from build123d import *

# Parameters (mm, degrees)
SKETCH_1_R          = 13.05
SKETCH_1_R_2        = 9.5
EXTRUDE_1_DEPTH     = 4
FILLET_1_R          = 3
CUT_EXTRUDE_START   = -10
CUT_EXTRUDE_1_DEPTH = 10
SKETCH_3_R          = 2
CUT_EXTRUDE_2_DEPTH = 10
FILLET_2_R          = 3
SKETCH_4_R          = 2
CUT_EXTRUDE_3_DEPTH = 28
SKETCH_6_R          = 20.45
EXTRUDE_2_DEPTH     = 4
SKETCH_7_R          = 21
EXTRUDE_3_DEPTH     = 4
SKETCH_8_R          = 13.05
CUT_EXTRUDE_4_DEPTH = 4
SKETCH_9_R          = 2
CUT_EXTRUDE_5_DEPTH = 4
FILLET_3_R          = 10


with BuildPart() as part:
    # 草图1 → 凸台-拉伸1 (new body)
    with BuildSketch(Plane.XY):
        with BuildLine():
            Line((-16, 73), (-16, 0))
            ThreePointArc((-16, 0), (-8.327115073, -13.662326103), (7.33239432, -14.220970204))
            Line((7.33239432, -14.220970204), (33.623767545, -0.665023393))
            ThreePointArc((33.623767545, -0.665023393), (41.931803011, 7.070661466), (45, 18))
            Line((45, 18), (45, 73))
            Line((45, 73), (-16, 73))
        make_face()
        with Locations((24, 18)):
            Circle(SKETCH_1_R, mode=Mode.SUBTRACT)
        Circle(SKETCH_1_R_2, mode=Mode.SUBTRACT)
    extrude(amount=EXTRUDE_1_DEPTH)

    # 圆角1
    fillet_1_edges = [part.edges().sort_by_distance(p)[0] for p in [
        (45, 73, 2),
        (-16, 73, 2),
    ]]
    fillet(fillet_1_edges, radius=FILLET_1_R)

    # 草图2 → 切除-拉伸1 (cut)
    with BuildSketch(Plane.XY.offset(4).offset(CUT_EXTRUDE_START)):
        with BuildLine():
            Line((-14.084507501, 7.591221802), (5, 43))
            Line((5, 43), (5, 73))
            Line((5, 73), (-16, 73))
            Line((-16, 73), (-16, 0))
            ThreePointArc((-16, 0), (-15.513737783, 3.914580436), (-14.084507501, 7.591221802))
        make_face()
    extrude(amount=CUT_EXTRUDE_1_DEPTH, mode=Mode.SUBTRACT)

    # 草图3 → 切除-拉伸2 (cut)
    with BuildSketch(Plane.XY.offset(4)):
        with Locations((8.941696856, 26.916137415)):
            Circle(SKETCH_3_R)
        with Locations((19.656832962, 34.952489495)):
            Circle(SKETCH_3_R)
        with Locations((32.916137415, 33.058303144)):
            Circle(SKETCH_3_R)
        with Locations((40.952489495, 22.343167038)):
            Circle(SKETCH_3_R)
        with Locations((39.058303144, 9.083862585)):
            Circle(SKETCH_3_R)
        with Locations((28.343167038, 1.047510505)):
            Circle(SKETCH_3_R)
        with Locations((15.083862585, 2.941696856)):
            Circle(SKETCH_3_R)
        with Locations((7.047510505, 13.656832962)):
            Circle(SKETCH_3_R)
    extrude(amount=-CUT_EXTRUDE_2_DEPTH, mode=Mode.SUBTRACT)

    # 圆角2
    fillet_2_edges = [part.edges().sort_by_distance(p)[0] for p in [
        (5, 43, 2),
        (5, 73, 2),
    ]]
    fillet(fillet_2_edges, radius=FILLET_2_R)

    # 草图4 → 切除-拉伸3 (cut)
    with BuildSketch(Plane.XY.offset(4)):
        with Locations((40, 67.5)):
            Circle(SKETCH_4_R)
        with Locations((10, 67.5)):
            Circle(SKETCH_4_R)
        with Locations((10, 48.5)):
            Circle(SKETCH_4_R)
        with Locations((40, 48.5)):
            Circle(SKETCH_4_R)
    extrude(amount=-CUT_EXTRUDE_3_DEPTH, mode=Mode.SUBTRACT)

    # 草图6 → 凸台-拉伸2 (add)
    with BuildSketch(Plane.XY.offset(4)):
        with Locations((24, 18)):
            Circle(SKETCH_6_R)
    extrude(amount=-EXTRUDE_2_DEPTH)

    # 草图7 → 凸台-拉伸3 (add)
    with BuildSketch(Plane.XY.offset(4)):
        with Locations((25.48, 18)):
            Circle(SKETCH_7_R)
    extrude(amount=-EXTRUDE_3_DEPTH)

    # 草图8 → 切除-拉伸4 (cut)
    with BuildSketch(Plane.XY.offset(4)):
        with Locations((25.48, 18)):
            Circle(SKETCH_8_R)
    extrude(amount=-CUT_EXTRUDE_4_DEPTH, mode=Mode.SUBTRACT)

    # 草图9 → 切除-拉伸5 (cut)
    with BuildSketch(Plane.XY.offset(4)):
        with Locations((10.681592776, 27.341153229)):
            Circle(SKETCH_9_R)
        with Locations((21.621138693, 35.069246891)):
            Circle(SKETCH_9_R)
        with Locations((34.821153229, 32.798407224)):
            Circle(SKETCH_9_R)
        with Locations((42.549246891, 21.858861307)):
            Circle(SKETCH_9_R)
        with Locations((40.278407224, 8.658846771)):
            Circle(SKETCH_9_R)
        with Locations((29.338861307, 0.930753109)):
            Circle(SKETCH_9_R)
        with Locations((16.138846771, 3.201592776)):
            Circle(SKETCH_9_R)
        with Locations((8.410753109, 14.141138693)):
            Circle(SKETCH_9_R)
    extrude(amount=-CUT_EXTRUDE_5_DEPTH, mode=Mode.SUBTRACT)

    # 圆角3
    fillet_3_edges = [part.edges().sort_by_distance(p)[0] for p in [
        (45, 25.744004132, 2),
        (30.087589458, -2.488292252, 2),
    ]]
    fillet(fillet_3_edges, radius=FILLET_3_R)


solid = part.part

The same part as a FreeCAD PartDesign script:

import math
import FreeCAD as App
import Part
import Sketcher
Q = App.Units.Quantity


def edges_at(feature, points):
    """Names of the edges that pass closest to the given points."""
    edges = feature.Shape.Edges
    near = lambda p: min(range(len(edges)), key=lambda i: edges[i].distToShape(Part.Vertex(*p))[0])
    return sorted({f"Edge{near(p) + 1}" for p in points})

doc = App.newDocument("Part")
body = doc.addObject("PartDesign::Body", "Body")

sketch1 = doc.addObject("Sketcher::SketchObject", "Sketch")
body.addObject(sketch1)
sketch1.AttachmentSupport = (doc.XY_Plane, [""])
sketch1.MapMode = "FlatFace"
sketch1.addGeometry([
    Part.LineSegment(App.Vector(-16, 73, 0), App.Vector(-16, 0, 0)),
    Part.ArcOfCircle(Part.Circle(App.Vector(0, 0, 0), App.Vector(0, 0, 1), 16), math.radians(-180), math.radians(-63)),
    Part.LineSegment(App.Vector(7, -14, 0), App.Vector(34, -1, 0)),
    Part.ArcOfCircle(Part.Circle(App.Vector(24, 18, 0), App.Vector(0, 0, 1), 21), math.radians(-63), math.radians(0)),
    Part.LineSegment(App.Vector(45, 18, 0), App.Vector(45, 73, 0)),
    Part.LineSegment(App.Vector(45, 73, 0), App.Vector(-16, 73, 0)),
    Part.Circle(App.Vector(0, 0, 0), App.Vector(0, 0, 1), 10),
    Part.Circle(App.Vector(24, 18, 0), App.Vector(0, 0, 1), 13),
], False)
sketch1.addConstraint([
    Sketcher.Constraint("Tangent", 0, 2, 1, 1),
    Sketcher.Constraint("Tangent", 1, 2, 2, 1),
    Sketcher.Constraint("Tangent", 2, 2, 3, 1),
    Sketcher.Constraint("Tangent", 3, 2, 4, 1),
    Sketcher.Constraint("Coincident", 4, 2, 5, 1),
    Sketcher.Constraint("Coincident", 5, 2, 0, 1),
    Sketcher.Constraint("Vertical", 0),
    Sketcher.Constraint("Vertical", 4),
    Sketcher.Constraint("Horizontal", 5),
    Sketcher.Constraint("Coincident", 1, 3, -1, 1),
    Sketcher.Constraint("Coincident", 6, 3, -1, 1),
    Sketcher.Constraint("Coincident", 7, 3, 3, 3),
    Sketcher.Constraint("Diameter", 6, Q("19 mm")),
    Sketcher.Constraint("Radius", 1, Q("16 mm")),
    Sketcher.Constraint("Radius", 3, Q("21 mm")),
    Sketcher.Constraint("Diameter", 7, Q("26.1 mm")),
    Sketcher.Constraint("DistanceX", 5, 2, 5, 1, Q("61 mm")),
    Sketcher.Constraint("DistanceY", 0, 2, 0, 1, Q("73 mm")),
    Sketcher.Constraint("DistanceY", 4, 1, 4, 2, Q("55 mm")),
])
pad1 = doc.addObject("PartDesign::Pad", "Pad")
body.addObject(pad1)
pad1.Profile = sketch1
pad1.Length = 4
doc.recompute()

fillet = doc.addObject("PartDesign::Fillet", "Fillet")
body.addObject(fillet)
fillet.Base = (pad1, edges_at(pad1, [(45, 73, 2), (-16, 73, 2)]))
fillet.Radius = 3

sketch2 = doc.addObject("Sketcher::SketchObject", "Sketch001")
body.addObject(sketch2)
sketch2.AttachmentSupport = (doc.XY_Plane, [""])
sketch2.MapMode = "FlatFace"
sketch2.AttachmentOffset = App.Placement(App.Vector(0, 0, -6), App.Rotation())
sketch2.addGeometry([
    Part.LineSegment(App.Vector(-14, 8, 0), App.Vector(5, 43, 0)),
    Part.LineSegment(App.Vector(5, 43, 0), App.Vector(5, 73, 0)),
    Part.LineSegment(App.Vector(5, 73, 0), App.Vector(-16, 73, 0)),
    Part.LineSegment(App.Vector(-16, 73, 0), App.Vector(-16, 0, 0)),
    Part.ArcOfCircle(Part.Circle(App.Vector(0, 0, 0), App.Vector(0, 0, 1), 16), math.radians(152), math.radians(180)),
], False)
sketch2.addConstraint([
    Sketcher.Constraint("Coincident", 0, 2, 1, 1),
    Sketcher.Constraint("Coincident", 1, 2, 2, 1),
    Sketcher.Constraint("Coincident", 2, 2, 3, 1),
    Sketcher.Constraint("Tangent", 3, 2, 4, 2),
    Sketcher.Constraint("Tangent", 4, 1, 0, 1),
    Sketcher.Constraint("Vertical", 1),
    Sketcher.Constraint("Horizontal", 2),
    Sketcher.Constraint("Vertical", 3),
    Sketcher.Constraint("Coincident", 4, 3, -1, 1),
    Sketcher.Constraint("Radius", 4, Q("16 mm")),
    Sketcher.Constraint("DistanceX", 2, 2, 2, 1, Q("21 mm")),
    Sketcher.Constraint("DistanceY", 1, 1, 1, 2, Q("30 mm")),
    Sketcher.Constraint("DistanceY", 3, 2, 3, 1, Q("73 mm")),
])
pocket1 = doc.addObject("PartDesign::Pocket", "Pocket")
body.addObject(pocket1)
pocket1.Profile = sketch2
pocket1.Length = 10
pocket1.Reversed = True

sketch3 = doc.addObject("Sketcher::SketchObject", "Sketch002")
body.addObject(sketch3)
sketch3.AttachmentSupport = (doc.XY_Plane, [""])
sketch3.MapMode = "FlatFace"
sketch3.AttachmentOffset = App.Placement(App.Vector(0, 0, 4), App.Rotation())
sketch3.addGeometry([
    Part.Circle(App.Vector(8.9, 26.9, 0), App.Vector(0, 0, 1), 2),
    Part.Circle(App.Vector(19.7, 35, 0), App.Vector(0, 0, 1), 2),
    Part.Circle(App.Vector(32.9, 33.1, 0), App.Vector(0, 0, 1), 2),
    Part.Circle(App.Vector(41, 22.3, 0), App.Vector(0, 0, 1), 2),
    Part.Circle(App.Vector(39.1, 9.1, 0), App.Vector(0, 0, 1), 2),
    Part.Circle(App.Vector(28.3, 1, 0), App.Vector(0, 0, 1), 2),
    Part.Circle(App.Vector(15.1, 2.9, 0), App.Vector(0, 0, 1), 2),
    Part.Circle(App.Vector(7, 13.7, 0), App.Vector(0, 0, 1), 2),
], False)
sketch3.addConstraint([
    Sketcher.Constraint("Equal", 0, 1),
    Sketcher.Constraint("Equal", 1, 2),
    Sketcher.Constraint("Equal", 2, 3),
    Sketcher.Constraint("Equal", 3, 4),
    Sketcher.Constraint("Equal", 4, 5),
    Sketcher.Constraint("Equal", 5, 6),
    Sketcher.Constraint("Equal", 6, 7),
    Sketcher.Constraint("Diameter", 0, Q("4 mm")),
    Sketcher.Constraint("DistanceY", -1, 1, 1, 3, Q("34.952489 mm")),
    Sketcher.Constraint("DistanceX", -1, 1, 3, 3, Q("40.952489 mm")),
    Sketcher.Constraint("DistanceY", -1, 1, 5, 3, Q("1.047511 mm")),
    Sketcher.Constraint("DistanceX", -1, 1, 7, 3, Q("7.047511 mm")),
    Sketcher.Constraint("DistanceX", 0, 3, 2, 3, Q("23.974441 mm")),
    Sketcher.Constraint("DistanceY", 3, 3, 0, 3, Q("4.57297 mm")),
    Sketcher.Constraint("DistanceY", 4, 3, 2, 3, Q("23.974441 mm")),
    Sketcher.Constraint("DistanceX", 1, 3, 4, 3, Q("19.40147 mm")),
    Sketcher.Constraint("DistanceX", 0, 3, 5, 3, Q("19.40147 mm")),
    Sketcher.Constraint("DistanceY", 6, 3, 0, 3, Q("23.974441 mm")),
    Sketcher.Constraint("DistanceX", 6, 3, 4, 3, Q("23.974441 mm")),
    Sketcher.Constraint("DistanceY", 7, 3, 2, 3, Q("19.40147 mm")),
    Sketcher.Constraint("DistanceX", -1, 1, 0, 3, Q("8.941697 mm")),
    Sketcher.Constraint("DistanceY", -1, 1, 0, 3, Q("26.916137 mm")),
    Sketcher.Constraint("DistanceX", -1, 1, 1, 3, Q("19.656833 mm")),
    Sketcher.Constraint("DistanceY", -1, 1, 2, 3, Q("33.058303 mm")),
])
pocket2 = doc.addObject("PartDesign::Pocket", "Pocket001")
body.addObject(pocket2)
pocket2.Profile = sketch3
pocket2.Length = 10
doc.recompute()

fillet2 = doc.addObject("PartDesign::Fillet", "Fillet001")
body.addObject(fillet2)
fillet2.Base = (pocket2, edges_at(pocket2, [(5, 43, 2), (5, 73, 2)]))
fillet2.Radius = 3

sketch4 = doc.addObject("Sketcher::SketchObject", "Sketch003")
body.addObject(sketch4)
sketch4.AttachmentSupport = (doc.XY_Plane, [""])
sketch4.MapMode = "FlatFace"
sketch4.AttachmentOffset = App.Placement(App.Vector(0, 0, 4), App.Rotation())
sketch4.addGeometry([
    Part.Circle(App.Vector(40, 67.5, 0), App.Vector(0, 0, 1), 2),
    Part.Circle(App.Vector(10, 67.5, 0), App.Vector(0, 0, 1), 2),
    Part.Circle(App.Vector(10, 48.5, 0), App.Vector(0, 0, 1), 2),
    Part.Circle(App.Vector(40, 48.5, 0), App.Vector(0, 0, 1), 2),
], False)
sketch4.addConstraint([
    Sketcher.Constraint("Equal", 0, 1),
    Sketcher.Constraint("Equal", 1, 2),
    Sketcher.Constraint("Equal", 2, 3),
    Sketcher.Constraint("Horizontal", 0, 3, 1, 3),
    Sketcher.Constraint("Horizontal", 2, 3, 3, 3),
    Sketcher.Constraint("Vertical", 1, 3, 2, 3),
    Sketcher.Constraint("Vertical", 0, 3, 3, 3),
    Sketcher.Constraint("Diameter", 0, Q("4 mm")),
    Sketcher.Constraint("DistanceX", -1, 1, 0, 3, Q("40 mm")),
    Sketcher.Constraint("DistanceX", -1, 1, 1, 3, Q("10 mm")),
    Sketcher.Constraint("DistanceY", 2, 3, 1, 3, Q("19 mm")),
    Sketcher.Constraint("DistanceY", -1, 1, 0, 3, Q("67.5 mm")),
])
pocket3 = doc.addObject("PartDesign::Pocket", "Pocket002")
body.addObject(pocket3)
pocket3.Profile = sketch4
pocket3.Length = 28

sketch5 = doc.addObject("Sketcher::SketchObject", "Sketch004")
body.addObject(sketch5)
sketch5.AttachmentSupport = (doc.XY_Plane, [""])
sketch5.MapMode = "FlatFace"
sketch5.AttachmentOffset = App.Placement(App.Vector(0, 0, 4), App.Rotation())
sketch5.addGeometry(Part.Circle(App.Vector(24, 18, 0), App.Vector(0, 0, 1), 20), False)
sketch5.addConstraint([
    Sketcher.Constraint("Diameter", 0, Q("40.9 mm")),
    Sketcher.Constraint("DistanceX", -1, 1, 0, 3, Q("24 mm")),
    Sketcher.Constraint("DistanceY", -1, 1, 0, 3, Q("18 mm")),
])
pad2 = doc.addObject("PartDesign::Pad", "Pad001")
body.addObject(pad2)
pad2.Profile = sketch5
pad2.Length = 4
pad2.Reversed = True

sketch6 = doc.addObject("Sketcher::SketchObject", "Sketch005")
body.addObject(sketch6)
sketch6.AttachmentSupport = (doc.XY_Plane, [""])
sketch6.MapMode = "FlatFace"
sketch6.AttachmentOffset = App.Placement(App.Vector(0, 0, 4), App.Rotation())
sketch6.addGeometry(Part.Circle(App.Vector(25, 18, 0), App.Vector(0, 0, 1), 21), False)
sketch6.addConstraint([
    Sketcher.Constraint("Diameter", 0, Q("42 mm")),
    Sketcher.Constraint("DistanceY", -1, 1, 0, 3, Q("18 mm")),
    Sketcher.Constraint("DistanceX", -1, 1, 0, 3, Q("25.48 mm")),
])
pad3 = doc.addObject("PartDesign::Pad", "Pad002")
body.addObject(pad3)
pad3.Profile = sketch6
pad3.Length = 4
pad3.Reversed = True

sketch7 = doc.addObject("Sketcher::SketchObject", "Sketch006")
body.addObject(sketch7)
sketch7.AttachmentSupport = (doc.XY_Plane, [""])
sketch7.MapMode = "FlatFace"
sketch7.AttachmentOffset = App.Placement(App.Vector(0, 0, 4), App.Rotation())
sketch7.addGeometry(Part.Circle(App.Vector(25, 18, 0), App.Vector(0, 0, 1), 13), False)
sketch7.addConstraint([
    Sketcher.Constraint("Diameter", 0, Q("26.1 mm")),
    Sketcher.Constraint("DistanceY", -1, 1, 0, 3, Q("18 mm")),
    Sketcher.Constraint("DistanceX", -1, 1, 0, 3, Q("25.48 mm")),
])
pocket4 = doc.addObject("PartDesign::Pocket", "Pocket003")
body.addObject(pocket4)
pocket4.Profile = sketch7
pocket4.Length = 4

sketch8 = doc.addObject("Sketcher::SketchObject", "Sketch007")
body.addObject(sketch8)
sketch8.AttachmentSupport = (doc.XY_Plane, [""])
sketch8.MapMode = "FlatFace"
sketch8.AttachmentOffset = App.Placement(App.Vector(0, 0, 4), App.Rotation())
sketch8.addGeometry([
    Part.Circle(App.Vector(10.7, 27.3, 0), App.Vector(0, 0, 1), 2),
    Part.Circle(App.Vector(21.6, 35.1, 0), App.Vector(0, 0, 1), 2),
    Part.Circle(App.Vector(34.8, 32.8, 0), App.Vector(0, 0, 1), 2),
    Part.Circle(App.Vector(42.5, 21.9, 0), App.Vector(0, 0, 1), 2),
    Part.Circle(App.Vector(40.3, 8.7, 0), App.Vector(0, 0, 1), 2),
    Part.Circle(App.Vector(29.3, 0.9, 0), App.Vector(0, 0, 1), 2),
    Part.Circle(App.Vector(16.1, 3.2, 0), App.Vector(0, 0, 1), 2),
    Part.Circle(App.Vector(8.4, 14.1, 0), App.Vector(0, 0, 1), 2),
], False)
sketch8.addConstraint([
    Sketcher.Constraint("Equal", 0, 1),
    Sketcher.Constraint("Equal", 1, 2),
    Sketcher.Constraint("Equal", 2, 3),
    Sketcher.Constraint("Equal", 3, 4),
    Sketcher.Constraint("Equal", 4, 5),
    Sketcher.Constraint("Equal", 5, 6),
    Sketcher.Constraint("Equal", 6, 7),
    Sketcher.Constraint("Diameter", 0, Q("4 mm")),
    Sketcher.Constraint("DistanceY", 4, 3, 1, 3, Q("26.4104 mm")),
    Sketcher.Constraint("DistanceY", 5, 3, 0, 3, Q("26.4104 mm")),
    Sketcher.Constraint("DistanceX", 6, 3, 3, 3, Q("26.4104 mm")),
    Sketcher.Constraint("DistanceX", -1, 1, 1, 3, Q("21.621139 mm")),
    Sketcher.Constraint("DistanceY", -1, 1, 3, 3, Q("21.858861 mm")),
    Sketcher.Constraint("DistanceX", -1, 1, 5, 3, Q("29.338861 mm")),
    Sketcher.Constraint("DistanceY", -1, 1, 7, 3, Q("14.141139 mm")),
    Sketcher.Constraint("DistanceY", 2, 3, 1, 3, Q("2.27084 mm")),
    Sketcher.Constraint("DistanceX", 0, 3, 2, 3, Q("24.13956 mm")),
    Sketcher.Constraint("DistanceX", 1, 3, 3, 3, Q("20.928108 mm")),
    Sketcher.Constraint("DistanceY", 3, 3, 0, 3, Q("5.482292 mm")),
    Sketcher.Constraint("DistanceX", 4, 3, 3, 3, Q("2.27084 mm")),
    Sketcher.Constraint("DistanceX", 5, 3, 2, 3, Q("5.482292 mm")),
    Sketcher.Constraint("DistanceY", 5, 3, 6, 3, Q("2.27084 mm")),
    Sketcher.Constraint("DistanceX", 7, 3, 0, 3, Q("2.27084 mm")),
    Sketcher.Constraint("DistanceY", 7, 3, 1, 3, Q("20.928108 mm")),
])
pocket5 = doc.addObject("PartDesign::Pocket", "Pocket004")
body.addObject(pocket5)
pocket5.Profile = sketch8
pocket5.Length = 4
doc.recompute()

fillet3 = doc.addObject("PartDesign::Fillet", "Fillet002")
body.addObject(fillet3)
fillet3.Base = (pocket5, edges_at(pocket5, [(45, 25.744, 2), (30.088, -2.488, 2)]))
fillet3.Radius = 10

doc.recompute()
